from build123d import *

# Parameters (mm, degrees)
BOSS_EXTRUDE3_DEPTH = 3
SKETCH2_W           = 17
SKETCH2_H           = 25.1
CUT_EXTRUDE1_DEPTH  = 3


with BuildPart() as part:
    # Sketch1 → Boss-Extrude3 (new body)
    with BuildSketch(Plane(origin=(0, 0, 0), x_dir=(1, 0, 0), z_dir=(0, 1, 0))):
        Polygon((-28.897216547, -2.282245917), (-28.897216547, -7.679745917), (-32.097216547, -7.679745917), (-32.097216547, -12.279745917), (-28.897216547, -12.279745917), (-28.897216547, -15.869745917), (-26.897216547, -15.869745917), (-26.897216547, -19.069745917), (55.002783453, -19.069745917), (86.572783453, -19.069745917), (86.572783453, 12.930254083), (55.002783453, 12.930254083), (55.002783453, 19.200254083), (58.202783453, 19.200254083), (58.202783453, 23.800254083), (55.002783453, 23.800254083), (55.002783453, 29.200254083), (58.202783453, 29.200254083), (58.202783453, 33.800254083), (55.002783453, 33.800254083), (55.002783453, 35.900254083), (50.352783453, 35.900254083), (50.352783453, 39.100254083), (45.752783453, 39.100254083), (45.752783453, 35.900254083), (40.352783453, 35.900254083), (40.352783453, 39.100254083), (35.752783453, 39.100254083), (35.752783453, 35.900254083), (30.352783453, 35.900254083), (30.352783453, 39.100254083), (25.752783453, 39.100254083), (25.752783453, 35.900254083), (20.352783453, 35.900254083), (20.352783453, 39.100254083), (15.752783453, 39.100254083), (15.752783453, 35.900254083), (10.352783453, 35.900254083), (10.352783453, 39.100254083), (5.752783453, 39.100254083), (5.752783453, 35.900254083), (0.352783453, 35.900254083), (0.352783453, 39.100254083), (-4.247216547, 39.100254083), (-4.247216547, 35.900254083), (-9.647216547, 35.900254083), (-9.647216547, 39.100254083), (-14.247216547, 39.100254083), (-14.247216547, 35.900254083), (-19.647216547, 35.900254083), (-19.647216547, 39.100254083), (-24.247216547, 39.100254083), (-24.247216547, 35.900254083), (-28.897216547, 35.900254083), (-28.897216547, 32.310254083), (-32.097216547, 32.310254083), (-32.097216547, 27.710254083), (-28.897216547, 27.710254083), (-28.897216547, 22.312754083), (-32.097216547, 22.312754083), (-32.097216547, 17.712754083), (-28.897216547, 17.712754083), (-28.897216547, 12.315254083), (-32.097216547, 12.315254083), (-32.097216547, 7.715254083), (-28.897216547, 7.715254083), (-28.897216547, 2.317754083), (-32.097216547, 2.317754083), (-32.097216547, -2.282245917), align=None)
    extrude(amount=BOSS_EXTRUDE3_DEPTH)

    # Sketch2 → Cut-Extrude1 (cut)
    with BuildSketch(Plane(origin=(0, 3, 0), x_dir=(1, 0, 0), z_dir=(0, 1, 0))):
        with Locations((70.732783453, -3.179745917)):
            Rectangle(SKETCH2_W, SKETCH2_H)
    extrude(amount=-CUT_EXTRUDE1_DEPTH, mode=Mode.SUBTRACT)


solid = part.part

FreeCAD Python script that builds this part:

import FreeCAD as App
import Part
import Sketcher
from FreeCAD import Vector

doc = App.newDocument("Part")
body = doc.addObject("PartDesign::Body", "Body")

sketch1 = doc.addObject("Sketcher::SketchObject", "Sketch")
body.addObject(sketch1)
sketch1.AttachmentSupport = (doc.XZ_Plane, [""])
sketch1.MapMode = "FlatFace"
sketch1.addGeometry(Part.LineSegment(Vector(-28.9, 2.3, 0), Vector(-28.9, 7.7, 0)), False)
sketch1.addGeometry(Part.LineSegment(Vector(-28.9, 7.7, 0), Vector(-32.1, 7.7, 0)), False)
sketch1.addGeometry(Part.LineSegment(Vector(-32.1, 7.7, 0), Vector(-32.1, 12.3, 0)), False)
sketch1.addGeometry(Part.LineSegment(Vector(-32.1, 12.3, 0), Vector(-28.9, 12.3, 0)), False)
sketch1.addGeometry(Part.LineSegment(Vector(-28.9, 12.3, 0), Vector(-28.9, 15.9, 0)), False)
sketch1.addGeometry(Part.LineSegment(Vector(-28.9, 15.9, 0), Vector(-26.9, 15.9, 0)), False)
sketch1.addGeometry(Part.LineSegment(Vector(-26.9, 15.9, 0), Vector(-26.9, 19.1, 0)), False)
sketch1.addGeometry(Part.LineSegment(Vector(-26.9, 19.1, 0), Vector(86.6, 19.1, 0)), False)
sketch1.addGeometry(Part.LineSegment(Vector(86.6, 19.1, 0), Vector(86.6, -12.9, 0)), False)
sketch1.addGeometry(Part.LineSegment(Vector(86.6, -12.9, 0), Vector(55, -12.9, 0)), False)
sketch1.addGeometry(Part.LineSegment(Vector(55, -12.9, 0), Vector(55, -19.2, 0)), False)
sketch1.addGeometry(Part.LineSegment(Vector(55, -19.2, 0), Vector(58.2, -19.2, 0)), False)
sketch1.addGeometry(Part.LineSegment(Vector(58.2, -19.2, 0), Vector(58.2, -23.8, 0)), False)
sketch1.addGeometry(Part.LineSegment(Vector(58.2, -23.8, 0), Vector(55, -23.8, 0)), False)
sketch1.addGeometry(Part.LineSegment(Vector(55, -23.8, 0), Vector(55, -29.2, 0)), False)
sketch1.addGeometry(Part.LineSegment(Vector(55, -29.2, 0), Vector(58.2, -29.2, 0)), False)
sketch1.addGeometry(Part.LineSegment(Vector(58.2, -29.2, 0), Vector(58.2, -33.8, 0)), False)
sketch1.addGeometry(Part.LineSegment(Vector(58.2, -33.8, 0), Vector(55, -33.8, 0)), False)
sketch1.addGeometry(Part.LineSegment(Vector(55, -33.8, 0), Vector(55, -35.9, 0)), False)
sketch1.addGeometry(Part.LineSegment(Vector(55, -35.9, 0), Vector(50.4, -35.9, 0)), False)
sketch1.addGeometry(Part.LineSegment(Vector(50.4, -35.9, 0), Vector(50.4, -39.1, 0)), False)
sketch1.addGeometry(Part.LineSegment(Vector(50.4, -39.1, 0), Vector(45.8, -39.1, 0)), False)
sketch1.addGeometry(Part.LineSegment(Vector(45.8, -39.1, 0), Vector(45.8, -35.9, 0)), False)
sketch1.addGeometry(Part.LineSegment(Vector(45.8, -35.9, 0), Vector(40.4, -35.9, 0)), False)
sketch1.addGeometry(Part.LineSegment(Vector(40.4, -35.9, 0), Vector(40.4, -39.1, 0)), False)
sketch1.addGeometry(Part.LineSegment(Vector(40.4, -39.1, 0), Vector(35.8, -39.1, 0)), False)
sketch1.addGeometry(Part.LineSegment(Vector(35.8, -39.1, 0), Vector(35.8, -35.9, 0)), False)
sketch1.addGeometry(Part.LineSegment(Vector(35.8, -35.9, 0), Vector(30.4, -35.9, 0)), False)
sketch1.addGeometry(Part.LineSegment(Vector(30.4, -35.9, 0), Vector(30.4, -39.1, 0)), False)
sketch1.addGeometry(Part.LineSegment(Vector(30.4, -39.1, 0), Vector(25.8, -39.1, 0)), False)
sketch1.addGeometry(Part.LineSegment(Vector(25.8, -39.1, 0), Vector(25.8, -35.9, 0)), False)
sketch1.addGeometry(Part.LineSegment(Vector(25.8, -35.9, 0), Vector(20.4, -35.9, 0)), False)
sketch1.addGeometry(Part.LineSegment(Vector(20.4, -35.9, 0), Vector(20.4, -39.1, 0)), False)
sketch1.addGeometry(Part.LineSegment(Vector(20.4, -39.1, 0), Vector(15.8, -39.1, 0)), False)
sketch1.addGeometry(Part.LineSegment(Vector(15.8, -39.1, 0), Vector(15.8, -35.9, 0)), False)
sketch1.addGeometry(Part.LineSegment(Vector(15.8, -35.9, 0), Vector(10.4, -35.9, 0)), False)
sketch1.addGeometry(Part.LineSegment(Vector(10.4, -35.9, 0), Vector(10.4, -39.1, 0)), False)
sketch1.addGeometry(Part.LineSegment(Vector(10.4, -39.1, 0), Vector(5.8, -39.1, 0)), False)
sketch1.addGeometry(Part.LineSegment(Vector(5.8, -39.1, 0), Vector(5.8, -35.9, 0)), False)
sketch1.addGeometry(Part.LineSegment(Vector(5.8, -35.9, 0), Vector(0.4, -35.9, 0)), False)
sketch1.addGeometry(Part.LineSegment(Vector(0.4, -35.9, 0), Vector(0.4, -39.1, 0)), False)
sketch1.addGeometry(Part.LineSegment(Vector(0.4, -39.1, 0), Vector(-4.2, -39.1, 0)), False)
sketch1.addGeometry(Part.LineSegment(Vector(-4.2, -39.1, 0), Vector(-4.2, -35.9, 0)), False)
sketch1.addGeometry(Part.LineSegment(Vector(-4.2, -35.9, 0), Vector(-9.6, -35.9, 0)), False)
sketch1.addGeometry(Part.LineSegment(Vector(-9.6, -35.9, 0), Vector(-9.6, -39.1, 0)), False)
sketch1.addGeometry(Part.LineSegment(Vector(-9.6, -39.1, 0), Vector(-14.2, -39.1, 0)), False)
sketch1.addGeometry(Part.LineSegment(Vector(-14.2, -39.1, 0), Vector(-14.2, -35.9, 0)), False)
sketch1.addGeometry(Part.LineSegment(Vector(-14.2, -35.9, 0), Vector(-19.6, -35.9, 0)), False)
sketch1.addGeometry(Part.LineSegment(Vector(-19.6, -35.9, 0), Vector(-19.6, -39.1, 0)), False)
sketch1.addGeometry(Part.LineSegment(Vector(-19.6, -39.1, 0), Vector(-24.2, -39.1, 0)), False)
sketch1.addGeometry(Part.LineSegment(Vector(-24.2, -39.1, 0), Vector(-24.2, -35.9, 0)), False)
sketch1.addGeometry(Part.LineSegment(Vector(-24.2, -35.9, 0), Vector(-28.9, -35.9, 0)), False)
sketch1.addGeometry(Part.LineSegment(Vector(-28.9, -35.9, 0), Vector(-28.9, -32.3, 0)), False)
sketch1.addGeometry(Part.LineSegment(Vector(-28.9, -32.3, 0), Vector(-32.1, -32.3, 0)), False)
sketch1.addGeometry(Part.LineSegment(Vector(-32.1, -32.3, 0), Vector(-32.1, -27.7, 0)), False)
sketch1.addGeometry(Part.LineSegment(Vector(-32.1, -27.7, 0), Vector(-28.9, -27.7, 0)), False)
sketch1.addGeometry(Part.LineSegment(Vector(-28.9, -27.7, 0), Vector(-28.9, -22.3, 0)), False)
sketch1.addGeometry(Part.LineSegment(Vector(-28.9, -22.3, 0), Vector(-32.1, -22.3, 0)), False)
sketch1.addGeometry(Part.LineSegment(Vector(-32.1, -22.3, 0), Vector(-32.1, -17.7, 0)), False)
sketch1.addGeometry(Part.LineSegment(Vector(-32.1, -17.7, 0), Vector(-28.9, -17.7, 0)), False)
sketch1.addGeometry(Part.LineSegment(Vector(-28.9, -17.7, 0), Vector(-28.9, -12.3, 0)), False)
sketch1.addGeometry(Part.LineSegment(Vector(-28.9, -12.3, 0), Vector(-32.1, -12.3, 0)), False)
sketch1.addGeometry(Part.LineSegment(Vector(-32.1, -12.3, 0), Vector(-32.1, -7.7, 0)), False)
sketch1.addGeometry(Part.LineSegment(Vector(-32.1, -7.7, 0), Vector(-28.9, -7.7, 0)), False)
sketch1.addGeometry(Part.LineSegment(Vector(-28.9, -7.7, 0), Vector(-28.9, -2.3, 0)), False)
sketch1.addGeometry(Part.LineSegment(Vector(-28.9, -2.3, 0), Vector(-32.1, -2.3, 0)), False)
sketch1.addGeometry(Part.LineSegment(Vector(-32.1, -2.3, 0), Vector(-32.1, 2.3, 0)), False)
sketch1.addGeometry(Part.LineSegment(Vector(-32.1, 2.3, 0), Vector(-28.9, 2.3, 0)), False)
sketch1.addConstraint(Sketcher.Constraint("Coincident", 0, 2, 1, 1))
sketch1.addConstraint(Sketcher.Constraint("Coincident", 1, 2, 2, 1))
sketch1.addConstraint(Sketcher.Constraint("Coincident", 2, 2, 3, 1))
sketch1.addConstraint(Sketcher.Constraint("Coincident", 3, 2, 4, 1))
sketch1.addConstraint(Sketcher.Constraint("Coincident", 4, 2, 5, 1))
sketch1.addConstraint(Sketcher.Constraint("Coincident", 5, 2, 6, 1))
sketch1.addConstraint(Sketcher.Constraint("Coincident", 6, 2, 7, 1))
sketch1.addConstraint(Sketcher.Constraint("Coincident", 7, 2, 8, 1))
sketch1.addConstraint(Sketcher.Constraint("Coincident", 8, 2, 9, 1))
sketch1.addConstraint(Sketcher.Constraint("Coincident", 9, 2, 10, 1))
sketch1.addConstraint(Sketcher.Constraint("Coincident", 10, 2, 11, 1))
sketch1.addConstraint(Sketcher.Constraint("Coincident", 11, 2, 12, 1))
sketch1.addConstraint(Sketcher.Constraint("Coincident", 12, 2, 13, 1))
sketch1.addConstraint(Sketcher.Constraint("Coincident", 13, 2, 14, 1))
sketch1.addConstraint(Sketcher.Constraint("Coincident", 14, 2, 15, 1))
sketch1.addConstraint(Sketcher.Constraint("Coincident", 15, 2, 16, 1))
sketch1.addConstraint(Sketcher.Constraint("Coincident", 16, 2, 17, 1))
sketch1.addConstraint(Sketcher.Constraint("Coincident", 17, 2, 18, 1))
sketch1.addConstraint(Sketcher.Constraint("Coincident", 18, 2, 19, 1))
sketch1.addConstraint(Sketcher.Constraint("Coincident", 19, 2, 20, 1))
sketch1.addConstraint(Sketcher.Constraint("Coincident", 20, 2, 21, 1))
sketch1.addConstraint(Sketcher.Constraint("Coincident", 21, 2, 22, 1))
sketch1.addConstraint(Sketcher.Constraint("Coincident", 22, 2, 23, 1))
sketch1.addConstraint(Sketcher.Constraint("Coincident", 23, 2, 24, 1))
sketch1.addConstraint(Sketcher.Constraint("Coincident", 24, 2, 25, 1))
sketch1.addConstraint(Sketcher.Constraint("Coincident", 25, 2, 26, 1))
sketch1.addConstraint(Sketcher.Constraint("Coincident", 26, 2, 27, 1))
sketch1.addConstraint(Sketcher.Constraint("Coincident", 27, 2, 28, 1))
sketch1.addConstraint(Sketcher.Constraint("Coincident", 28, 2, 29, 1))
sketch1.addConstraint(Sketcher.Constraint("Coincident", 29, 2, 30, 1))
sketch1.addConstraint(Sketcher.Constraint("Coincident", 30, 2, 31, 1))
sketch1.addConstraint(Sketcher.Constraint("Coincident", 31, 2, 32, 1))
sketch1.addConstraint(Sketcher.Constraint("Coincident", 32, 2, 33, 1))
sketch1.addConstraint(Sketcher.Constraint("Coincident", 33, 2, 34, 1))
sketch1.addConstraint(Sketcher.Constraint("Coincident", 34, 2, 35, 1))
sketch1.addConstraint(Sketcher.Constraint("Coincident", 35, 2, 36, 1))
sketch1.addConstraint(Sketcher.Constraint("Coincident", 36, 2, 37, 1))
sketch1.addConstraint(Sketcher.Constraint("Coincident", 37, 2, 38, 1))
sketch1.addConstraint(Sketcher.Constraint("Coincident", 38, 2, 39, 1))
sketch1.addConstraint(Sketcher.Constraint("Coincident", 39, 2, 40, 1))
sketch1.addConstraint(Sketcher.Constraint("Coincident", 40, 2, 41, 1))
sketch1.addConstraint(Sketcher.Constraint("Coincident", 41, 2, 42, 1))
sketch1.addConstraint(Sketcher.Constraint("Coincident", 42, 2, 43, 1))
sketch1.addConstraint(Sketcher.Constraint("Coincident", 43, 2, 44, 1))
sketch1.addConstraint(Sketcher.Constraint("Coincident", 44, 2, 45, 1))
sketch1.addConstraint(Sketcher.Constraint("Coincident", 45, 2, 46, 1))
sketch1.addConstraint(Sketcher.Constraint("Coincident", 46, 2, 47, 1))
sketch1.addConstraint(Sketcher.Constraint("Coincident", 47, 2, 48, 1))
sketch1.addConstraint(Sketcher.Constraint("Coincident", 48, 2, 49, 1))
sketch1.addConstraint(Sketcher.Constraint("Coincident", 49, 2, 50, 1))
sketch1.addConstraint(Sketcher.Constraint("Coincident", 50, 2, 51, 1))
sketch1.addConstraint(Sketcher.Constraint("Coincident", 51, 2, 52, 1))
sketch1.addConstraint(Sketcher.Constraint("Coincident", 52, 2, 53, 1))
sketch1.addConstraint(Sketcher.Constraint("Coincident", 53, 2, 54, 1))
sketch1.addConstraint(Sketcher.Constraint("Coincident", 54, 2, 55, 1))
sketch1.addConstraint(Sketcher.Constraint("Coincident", 55, 2, 56, 1))
sketch1.addConstraint(Sketcher.Constraint("Coincident", 56, 2, 57, 1))
sketch1.addConstraint(Sketcher.Constraint("Coincident", 57, 2, 58, 1))
sketch1.addConstraint(Sketcher.Constraint("Coincident", 58, 2, 59, 1))
sketch1.addConstraint(Sketcher.Constraint("Coincident", 59, 2, 60, 1))
sketch1.addConstraint(Sketcher.Constraint("Coincident", 60, 2, 61, 1))
sketch1.addConstraint(Sketcher.Constraint("Coincident", 61, 2, 62, 1))
sketch1.addConstraint(Sketcher.Constraint("Coincident", 62, 2, 63, 1))
sketch1.addConstraint(Sketcher.Constraint("Coincident", 63, 2, 64, 1))
sketch1.addConstraint(Sketcher.Constraint("Coincident", 64, 2, 65, 1))
sketch1.addConstraint(Sketcher.Constraint("Coincident", 65, 2, 66, 1))
sketch1.addConstraint(Sketcher.Constraint("Coincident", 66, 2, 67, 1))
sketch1.addConstraint(Sketcher.Constraint("Coincident", 67, 2, 0, 1))
sketch1.addConstraint(Sketcher.Constraint("Vertical", 0))
sketch1.addConstraint(Sketcher.Constraint("Horizontal", 1))
sketch1.addConstraint(Sketcher.Constraint("Vertical", 2))
sketch1.addConstraint(Sketcher.Constraint("Horizontal", 3))
sketch1.addConstraint(Sketcher.Constraint("Vertical", 4))
sketch1.addConstraint(Sketcher.Constraint("Horizontal", 5))
sketch1.addConstraint(Sketcher.Constraint("Vertical", 6))
sketch1.addConstraint(Sketcher.Constraint("Horizontal", 7))
sketch1.addConstraint(Sketcher.Constraint("Vertical", 8))
sketch1.addConstraint(Sketcher.Constraint("Horizontal", 9))
sketch1.addConstraint(Sketcher.Constraint("Vertical", 10))
sketch1.addConstraint(Sketcher.Constraint("Horizontal", 11))
sketch1.addConstraint(Sketcher.Constraint("Vertical", 12))
sketch1.addConstraint(Sketcher.Constraint("Horizontal", 13))
sketch1.addConstraint(Sketcher.Constraint("Vertical", 14))
sketch1.addConstraint(Sketcher.Constraint("Horizontal", 15))
sketch1.addConstraint(Sketcher.Constraint("Vertical", 16))
sketch1.addConstraint(Sketcher.Constraint("Horizontal", 17))
sketch1.addConstraint(Sketcher.Constraint("Vertical", 18))
sketch1.addConstraint(Sketcher.Constraint("Horizontal", 19))
sketch1.addConstraint(Sketcher.Constraint("Vertical", 20))
sketch1.addConstraint(Sketcher.Constraint("Horizontal", 21))
sketch1.addConstraint(Sketcher.Constraint("Vertical", 22))
sketch1.addConstraint(Sketcher.Constraint("Horizontal", 23))
sketch1.addConstraint(Sketcher.Constraint("Vertical", 24))
sketch1.addConstraint(Sketcher.Constraint("Horizontal", 25))
sketch1.addConstraint(Sketcher.Constraint("Vertical", 26))
sketch1.addConstraint(Sketcher.Constraint("Horizontal", 27))
sketch1.addConstraint(Sketcher.Constraint("Vertical", 28))
sketch1.addConstraint(Sketcher.Constraint("Horizontal", 29))
sketch1.addConstraint(Sketcher.Constraint("Vertical", 30))
sketch1.addConstraint(Sketcher.Constraint("Horizontal", 31))
sketch1.addConstraint(Sketcher.Constraint("Vertical", 32))
sketch1.addConstraint(Sketcher.Constraint("Horizontal", 33))
sketch1.addConstraint(Sketcher.Constraint("Vertical", 34))
sketch1.addConstraint(Sketcher.Constraint("Horizontal", 35))
sketch1.addConstraint(Sketcher.Constraint("Vertical", 36))
sketch1.addConstraint(Sketcher.Constraint("Horizontal", 37))
sketch1.addConstraint(Sketcher.Constraint("Vertical", 38))
sketch1.addConstraint(Sketcher.Constraint("Horizontal", 39))
sketch1.addConstraint(Sketcher.Constraint("Vertical", 40))
sketch1.addConstraint(Sketcher.Constraint("Horizontal", 41))
sketch1.addConstraint(Sketcher.Constraint("Vertical", 42))
sketch1.addConstraint(Sketcher.Constraint("Horizontal", 43))
sketch1.addConstraint(Sketcher.Constraint("Vertical", 44))
sketch1.addConstraint(Sketcher.Constraint("Horizontal", 45))
sketch1.addConstraint(Sketcher.Constraint("Vertical", 46))
sketch1.addConstraint(Sketcher.Constraint("Horizontal", 47))
sketch1.addConstraint(Sketcher.Constraint("Vertical", 48))
sketch1.addConstraint(Sketcher.Constraint("Horizontal", 49))
sketch1.addConstraint(Sketcher.Constraint("Vertical", 50))
sketch1.addConstraint(Sketcher.Constraint("Horizontal", 51))
sketch1.addConstraint(Sketcher.Constraint("Vertical", 52))
sketch1.addConstraint(Sketcher.Constraint("Horizontal", 53))
sketch1.addConstraint(Sketcher.Constraint("Vertical", 54))
sketch1.addConstraint(Sketcher.Constraint("Horizontal", 55))
sketch1.addConstraint(Sketcher.Constraint("Vertical", 56))
sketch1.addConstraint(Sketcher.Constraint("Horizontal", 57))
sketch1.addConstraint(Sketcher.Constraint("Vertical", 58))
sketch1.addConstraint(Sketcher.Constraint("Horizontal", 59))
sketch1.addConstraint(Sketcher.Constraint("Vertical", 60))
sketch1.addConstraint(Sketcher.Constraint("Horizontal", 61))
sketch1.addConstraint(Sketcher.Constraint("Vertical", 62))
sketch1.addConstraint(Sketcher.Constraint("Horizontal", 63))
sketch1.addConstraint(Sketcher.Constraint("Vertical", 64))
sketch1.addConstraint(Sketcher.Constraint("Horizontal", 65))
sketch1.addConstraint(Sketcher.Constraint("Vertical", 66))
sketch1.addConstraint(Sketcher.Constraint("Horizontal", 67))
sketch1.addConstraint(Sketcher.Constraint("Horizontal", 19, 2, 22, 2))
sketch1.addConstraint(Sketcher.Constraint("Horizontal", 21, 2, 24, 2))
sketch1.addConstraint(Sketcher.Constraint("Horizontal", 23, 2, 26, 2))
sketch1.addConstraint(Sketcher.Constraint("Horizontal", 25, 2, 28, 2))
sketch1.addConstraint(Sketcher.Constraint("Horizontal", 27, 2, 30, 2))
sketch1.addConstraint(Sketcher.Constraint("Horizontal", 29, 2, 32, 2))
sketch1.addConstraint(Sketcher.Constraint("Horizontal", 31, 2, 34, 2))
sketch1.addConstraint(Sketcher.Constraint("Horizontal", 33, 2, 36, 2))
sketch1.addConstraint(Sketcher.Constraint("Horizontal", 35, 2, 38, 2))
sketch1.addConstraint(Sketcher.Constraint("Horizontal", 37, 2, 40, 2))
sketch1.addConstraint(Sketcher.Constraint("Horizontal", 39, 2, 42, 2))
sketch1.addConstraint(Sketcher.Constraint("Horizontal", 41, 2, 44, 2))
sketch1.addConstraint(Sketcher.Constraint("Horizontal", 43, 2, 46, 2))
sketch1.addConstraint(Sketcher.Constraint("Horizontal", 45, 2, 48, 2))
sketch1.addConstraint(Sketcher.Constraint("Horizontal", 47, 2, 50, 2))
sketch1.addConstraint(Sketcher.Constraint("Vertical", 0, 2, 3, 2))
sketch1.addConstraint(Sketcher.Constraint("Vertical", 10, 2, 13, 2))
sketch1.addConstraint(Sketcher.Constraint("Vertical", 12, 2, 15, 2))
sketch1.addConstraint(Sketcher.Constraint("Vertical", 14, 2, 17, 2))
sketch1.addConstraint(Sketcher.Constraint("Vertical", 4, 2, 51, 2))
sketch1.addConstraint(Sketcher.Constraint("Vertical", 2, 2, 53, 2))
sketch1.addConstraint(Sketcher.Constraint("Vertical", 52, 2, 55, 2))
sketch1.addConstraint(Sketcher.Constraint("Vertical", 54, 2, 57, 2))
sketch1.addConstraint(Sketcher.Constraint("Vertical", 56, 2, 59, 2))
sketch1.addConstraint(Sketcher.Constraint("Vertical", 58, 2, 61, 2))
sketch1.addConstraint(Sketcher.Constraint("Vertical", 60, 2, 63, 2))
sketch1.addConstraint(Sketcher.Constraint("Vertical", 62, 2, 65, 2))
sketch1.addConstraint(Sketcher.Constraint("Equal", 3, 11))
sketch1.addConstraint(Sketcher.Constraint("Equal", 21, 25))
sketch1.addConstraint(Sketcher.Constraint("Equal", 23, 27))
sketch1.addConstraint(Sketcher.Constraint("Equal", 25, 29))
sketch1.addConstraint(Sketcher.Constraint("Equal", 27, 31))
sketch1.addConstraint(Sketcher.Constraint("Equal", 29, 33))
sketch1.addConstraint(Sketcher.Constraint("Equal", 31, 35))
sketch1.addConstraint(Sketcher.Constraint("Equal", 33, 37))
sketch1.addConstraint(Sketcher.Constraint("Equal", 35, 39))
sketch1.addConstraint(Sketcher.Constraint("Equal", 37, 41))
sketch1.addConstraint(Sketcher.Constraint("Equal", 39, 43))
sketch1.addConstraint(Sketcher.Constraint("Equal", 41, 45))
sketch1.addConstraint(Sketcher.Constraint("Equal", 43, 47))
sketch1.addConstraint(Sketcher.Constraint("Equal", 45, 49))
sketch1.addConstraint(Sketcher.Constraint("Equal", 19, 51))
sketch1.addConstraint(Sketcher.Constraint("Equal", 49, 2))
sketch1.addConstraint(Sketcher.Constraint("Equal", 67, 6))
sketch1.addConstraint(Sketcher.Constraint("Equal", 2, 12))
sketch1.addConstraint(Sketcher.Constraint("Equal", 47, 14))
sketch1.addConstraint(Sketcher.Constraint("Equal", 12, 16))
sketch1.addConstraint(Sketcher.Constraint("Equal", 6, 20))
sketch1.addConstraint(Sketcher.Constraint("Equal", 4, 52))
sketch1.addConstraint(Sketcher.Constraint("Equal", 16, 54))
sketch1.addConstraint(Sketcher.Constraint("Equal", 0, 56))
sketch1.addConstraint(Sketcher.Constraint("Equal", 54, 58))
sketch1.addConstraint(Sketcher.Constraint("Equal", 56, 60))
sketch1.addConstraint(Sketcher.Constraint("Equal", 58, 62))
sketch1.addConstraint(Sketcher.Constraint("Equal", 60, 64))
sketch1.addConstraint(Sketcher.Constraint("Equal", 62, 66))
sketch1.addConstraint(Sketcher.Constraint("DistanceX", 5, 1, 5, 2, 2.0))
sketch1.addConstraint(Sketcher.Constraint("DistanceY", 8, 2, 8, 1, 32.0))
sketch1.addConstraint(Sketcher.Constraint("DistanceX", 1, 2, 1, 1, 3.2))
sketch1.addConstraint(Sketcher.Constraint("DistanceX", 21, 2, 21, 1, 4.6))
sketch1.addConstraint(Sketcher.Constraint("DistanceX", 23, 2, 23, 1, 5.4))
sketch1.addConstraint(Sketcher.Constraint("DistanceY", 18, 2, 18, 1, 2.1))
sketch1.addConstraint(Sketcher.Constraint("DistanceX", 7, 1, 7, 2, 113.47))
sketch1.addConstraint(Sketcher.Constraint("DistanceX", 9, 2, 9, 1, 31.57))
sketch1.addConstraint(Sketcher.Constraint("DistanceY", 4, 1, 4, 2, 3.59))
sketch1.addConstraint(Sketcher.Constraint("DistanceY", 10, 2, 10, 1, 6.27))
sketch1.addConstraint(Sketcher.Constraint("DistanceX", 0, 2, -1, 1, 28.897217))
sketch1.addConstraint(Sketcher.Constraint("DistanceY", -1, 1, 0, 2, 7.679746))
pad1 = doc.addObject("PartDesign::Pad", "Pad")
body.addObject(pad1)
pad1.Profile = sketch1
pad1.Length = 3
pad1.Reversed = True

sketch2 = doc.addObject("Sketcher::SketchObject", "Sketch001")
body.addObject(sketch2)
sketch2.AttachmentSupport = (doc.XZ_Plane, [""])
sketch2.MapMode = "FlatFace"
sketch2.AttachmentOffset = App.Placement(Vector(0, 0, -3), App.Rotation())
sketch2.addGeometry(Part.LineSegment(Vector(62, -9, 0), Vector(62, 16, 0)), False)
sketch2.addGeometry(Part.LineSegment(Vector(62, 16, 0), Vector(79, 16, 0)), False)
sketch2.addGeometry(Part.LineSegment(Vector(79, 16, 0), Vector(79, -9, 0)), False)
sketch2.addGeometry(Part.LineSegment(Vector(79, -9, 0), Vector(62, -9, 0)), False)
sketch2.addConstraint(Sketcher.Constraint("Coincident", 0, 2, 1, 1))
sketch2.addConstraint(Sketcher.Constraint("Coincident", 1, 2, 2, 1))
sketch2.addConstraint(Sketcher.Constraint("Coincident", 2, 2, 3, 1))
sketch2.addConstraint(Sketcher.Constraint("Coincident", 3, 2, 0, 1))
sketch2.addConstraint(Sketcher.Constraint("Vertical", 0))
sketch2.addConstraint(Sketcher.Constraint("Horizontal", 1))
sketch2.addConstraint(Sketcher.Constraint("Vertical", 2))
sketch2.addConstraint(Sketcher.Constraint("Horizontal", 3))
sketch2.addConstraint(Sketcher.Constraint("DistanceX", 1, 1, 1, 2, 17.0))
sketch2.addConstraint(Sketcher.Constraint("DistanceY", 0, 1, 0, 2, 25.1))
sketch2.addConstraint(Sketcher.Constraint("DistanceX", -1, 1, 0, 2, 62.232783))
sketch2.addConstraint(Sketcher.Constraint("DistanceY", -1, 1, 0, 2, 15.729746))
pocket1 = doc.addObject("PartDesign::Pocket", "Pocket")
body.addObject(pocket1)
pocket1.Profile = sketch2
pocket1.Length = 3
pocket1.Reversed = True

doc.recompute()
